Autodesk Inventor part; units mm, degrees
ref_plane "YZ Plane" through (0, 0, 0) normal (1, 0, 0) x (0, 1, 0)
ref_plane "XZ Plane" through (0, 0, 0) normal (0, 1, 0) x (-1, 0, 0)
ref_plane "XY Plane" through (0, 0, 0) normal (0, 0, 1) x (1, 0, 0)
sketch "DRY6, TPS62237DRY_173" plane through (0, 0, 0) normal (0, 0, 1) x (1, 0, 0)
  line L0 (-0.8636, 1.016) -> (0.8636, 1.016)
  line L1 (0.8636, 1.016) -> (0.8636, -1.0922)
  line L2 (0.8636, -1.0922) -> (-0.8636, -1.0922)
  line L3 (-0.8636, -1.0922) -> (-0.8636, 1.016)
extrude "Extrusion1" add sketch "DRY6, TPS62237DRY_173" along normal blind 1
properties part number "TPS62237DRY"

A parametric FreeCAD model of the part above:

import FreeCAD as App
import Part
import Sketcher
Q = App.Units.Quantity


def add_polygon(sketch, points):
    """Adds a closed chain of lines whose ends are joined by coincident constraints."""
    first, n = sketch.GeometryCount, len(points)
    for a, b in zip(points, points[1:] + points[:1]):
        sketch.addGeometry(Part.LineSegment(App.Vector(*a, 0), App.Vector(*b, 0)), False)
    for i in range(n):
        sketch.addConstraint(Sketcher.Constraint("Coincident", first + i, 2, first + (i + 1) % n, 1))

doc = App.newDocument("Part")
params = doc.addObject("Spreadsheet::Sheet", "Params")
for row, (alias, value) in enumerate([
    ("sketch1_width", "0.068 in"),
    ("sketch1_height", "0.083 in"),
    ("pad1_length", "1 mm"),
], start=1):
    params.set(f"A{row}", alias)
    params.set(f"B{row}", "=" + value)
    params.setAlias(f"B{row}", alias)

body = doc.addObject("PartDesign::Body", "Body")

sketch1 = body.newObject("Sketcher::SketchObject", "Sketch")
sketch1.AttachmentSupport = (doc.getObject("XY_Plane"), [""])
sketch1.MapMode = "FlatFace"
add_polygon(sketch1, [(0.9, 1), (-0.9, 1), (-0.9, -1.1), (0.9, -1.1)])
sketch1.addConstraint([
    Sketcher.Constraint("Horizontal", 0),
    Sketcher.Constraint("Vertical", 1),
    Sketcher.Constraint("Horizontal", 2),
    Sketcher.Constraint("Vertical", 3),
    Sketcher.Constraint("DistanceX", 0, 2, 0, 1, Q("0.068 in")),
    Sketcher.Constraint("DistanceY", 1, 2, 1, 1, Q("0.083 in")),
    Sketcher.Constraint("DistanceY", -1, 1, 0, 2, Q("0.04 in")),
    Sketcher.Constraint("DistanceX", 0, 2, -1, 1, Q("0.034 in")),
])
sketch1.setExpression("Constraints[8]", "Params.sketch1_width")
sketch1.setExpression("Constraints[9]", "Params.sketch1_height")
pad1 = body.newObject("PartDesign::Pad", "Pad")
pad1.Profile = sketch1
pad1.setExpression("Length", "Params.pad1_length")

doc.recompute()
